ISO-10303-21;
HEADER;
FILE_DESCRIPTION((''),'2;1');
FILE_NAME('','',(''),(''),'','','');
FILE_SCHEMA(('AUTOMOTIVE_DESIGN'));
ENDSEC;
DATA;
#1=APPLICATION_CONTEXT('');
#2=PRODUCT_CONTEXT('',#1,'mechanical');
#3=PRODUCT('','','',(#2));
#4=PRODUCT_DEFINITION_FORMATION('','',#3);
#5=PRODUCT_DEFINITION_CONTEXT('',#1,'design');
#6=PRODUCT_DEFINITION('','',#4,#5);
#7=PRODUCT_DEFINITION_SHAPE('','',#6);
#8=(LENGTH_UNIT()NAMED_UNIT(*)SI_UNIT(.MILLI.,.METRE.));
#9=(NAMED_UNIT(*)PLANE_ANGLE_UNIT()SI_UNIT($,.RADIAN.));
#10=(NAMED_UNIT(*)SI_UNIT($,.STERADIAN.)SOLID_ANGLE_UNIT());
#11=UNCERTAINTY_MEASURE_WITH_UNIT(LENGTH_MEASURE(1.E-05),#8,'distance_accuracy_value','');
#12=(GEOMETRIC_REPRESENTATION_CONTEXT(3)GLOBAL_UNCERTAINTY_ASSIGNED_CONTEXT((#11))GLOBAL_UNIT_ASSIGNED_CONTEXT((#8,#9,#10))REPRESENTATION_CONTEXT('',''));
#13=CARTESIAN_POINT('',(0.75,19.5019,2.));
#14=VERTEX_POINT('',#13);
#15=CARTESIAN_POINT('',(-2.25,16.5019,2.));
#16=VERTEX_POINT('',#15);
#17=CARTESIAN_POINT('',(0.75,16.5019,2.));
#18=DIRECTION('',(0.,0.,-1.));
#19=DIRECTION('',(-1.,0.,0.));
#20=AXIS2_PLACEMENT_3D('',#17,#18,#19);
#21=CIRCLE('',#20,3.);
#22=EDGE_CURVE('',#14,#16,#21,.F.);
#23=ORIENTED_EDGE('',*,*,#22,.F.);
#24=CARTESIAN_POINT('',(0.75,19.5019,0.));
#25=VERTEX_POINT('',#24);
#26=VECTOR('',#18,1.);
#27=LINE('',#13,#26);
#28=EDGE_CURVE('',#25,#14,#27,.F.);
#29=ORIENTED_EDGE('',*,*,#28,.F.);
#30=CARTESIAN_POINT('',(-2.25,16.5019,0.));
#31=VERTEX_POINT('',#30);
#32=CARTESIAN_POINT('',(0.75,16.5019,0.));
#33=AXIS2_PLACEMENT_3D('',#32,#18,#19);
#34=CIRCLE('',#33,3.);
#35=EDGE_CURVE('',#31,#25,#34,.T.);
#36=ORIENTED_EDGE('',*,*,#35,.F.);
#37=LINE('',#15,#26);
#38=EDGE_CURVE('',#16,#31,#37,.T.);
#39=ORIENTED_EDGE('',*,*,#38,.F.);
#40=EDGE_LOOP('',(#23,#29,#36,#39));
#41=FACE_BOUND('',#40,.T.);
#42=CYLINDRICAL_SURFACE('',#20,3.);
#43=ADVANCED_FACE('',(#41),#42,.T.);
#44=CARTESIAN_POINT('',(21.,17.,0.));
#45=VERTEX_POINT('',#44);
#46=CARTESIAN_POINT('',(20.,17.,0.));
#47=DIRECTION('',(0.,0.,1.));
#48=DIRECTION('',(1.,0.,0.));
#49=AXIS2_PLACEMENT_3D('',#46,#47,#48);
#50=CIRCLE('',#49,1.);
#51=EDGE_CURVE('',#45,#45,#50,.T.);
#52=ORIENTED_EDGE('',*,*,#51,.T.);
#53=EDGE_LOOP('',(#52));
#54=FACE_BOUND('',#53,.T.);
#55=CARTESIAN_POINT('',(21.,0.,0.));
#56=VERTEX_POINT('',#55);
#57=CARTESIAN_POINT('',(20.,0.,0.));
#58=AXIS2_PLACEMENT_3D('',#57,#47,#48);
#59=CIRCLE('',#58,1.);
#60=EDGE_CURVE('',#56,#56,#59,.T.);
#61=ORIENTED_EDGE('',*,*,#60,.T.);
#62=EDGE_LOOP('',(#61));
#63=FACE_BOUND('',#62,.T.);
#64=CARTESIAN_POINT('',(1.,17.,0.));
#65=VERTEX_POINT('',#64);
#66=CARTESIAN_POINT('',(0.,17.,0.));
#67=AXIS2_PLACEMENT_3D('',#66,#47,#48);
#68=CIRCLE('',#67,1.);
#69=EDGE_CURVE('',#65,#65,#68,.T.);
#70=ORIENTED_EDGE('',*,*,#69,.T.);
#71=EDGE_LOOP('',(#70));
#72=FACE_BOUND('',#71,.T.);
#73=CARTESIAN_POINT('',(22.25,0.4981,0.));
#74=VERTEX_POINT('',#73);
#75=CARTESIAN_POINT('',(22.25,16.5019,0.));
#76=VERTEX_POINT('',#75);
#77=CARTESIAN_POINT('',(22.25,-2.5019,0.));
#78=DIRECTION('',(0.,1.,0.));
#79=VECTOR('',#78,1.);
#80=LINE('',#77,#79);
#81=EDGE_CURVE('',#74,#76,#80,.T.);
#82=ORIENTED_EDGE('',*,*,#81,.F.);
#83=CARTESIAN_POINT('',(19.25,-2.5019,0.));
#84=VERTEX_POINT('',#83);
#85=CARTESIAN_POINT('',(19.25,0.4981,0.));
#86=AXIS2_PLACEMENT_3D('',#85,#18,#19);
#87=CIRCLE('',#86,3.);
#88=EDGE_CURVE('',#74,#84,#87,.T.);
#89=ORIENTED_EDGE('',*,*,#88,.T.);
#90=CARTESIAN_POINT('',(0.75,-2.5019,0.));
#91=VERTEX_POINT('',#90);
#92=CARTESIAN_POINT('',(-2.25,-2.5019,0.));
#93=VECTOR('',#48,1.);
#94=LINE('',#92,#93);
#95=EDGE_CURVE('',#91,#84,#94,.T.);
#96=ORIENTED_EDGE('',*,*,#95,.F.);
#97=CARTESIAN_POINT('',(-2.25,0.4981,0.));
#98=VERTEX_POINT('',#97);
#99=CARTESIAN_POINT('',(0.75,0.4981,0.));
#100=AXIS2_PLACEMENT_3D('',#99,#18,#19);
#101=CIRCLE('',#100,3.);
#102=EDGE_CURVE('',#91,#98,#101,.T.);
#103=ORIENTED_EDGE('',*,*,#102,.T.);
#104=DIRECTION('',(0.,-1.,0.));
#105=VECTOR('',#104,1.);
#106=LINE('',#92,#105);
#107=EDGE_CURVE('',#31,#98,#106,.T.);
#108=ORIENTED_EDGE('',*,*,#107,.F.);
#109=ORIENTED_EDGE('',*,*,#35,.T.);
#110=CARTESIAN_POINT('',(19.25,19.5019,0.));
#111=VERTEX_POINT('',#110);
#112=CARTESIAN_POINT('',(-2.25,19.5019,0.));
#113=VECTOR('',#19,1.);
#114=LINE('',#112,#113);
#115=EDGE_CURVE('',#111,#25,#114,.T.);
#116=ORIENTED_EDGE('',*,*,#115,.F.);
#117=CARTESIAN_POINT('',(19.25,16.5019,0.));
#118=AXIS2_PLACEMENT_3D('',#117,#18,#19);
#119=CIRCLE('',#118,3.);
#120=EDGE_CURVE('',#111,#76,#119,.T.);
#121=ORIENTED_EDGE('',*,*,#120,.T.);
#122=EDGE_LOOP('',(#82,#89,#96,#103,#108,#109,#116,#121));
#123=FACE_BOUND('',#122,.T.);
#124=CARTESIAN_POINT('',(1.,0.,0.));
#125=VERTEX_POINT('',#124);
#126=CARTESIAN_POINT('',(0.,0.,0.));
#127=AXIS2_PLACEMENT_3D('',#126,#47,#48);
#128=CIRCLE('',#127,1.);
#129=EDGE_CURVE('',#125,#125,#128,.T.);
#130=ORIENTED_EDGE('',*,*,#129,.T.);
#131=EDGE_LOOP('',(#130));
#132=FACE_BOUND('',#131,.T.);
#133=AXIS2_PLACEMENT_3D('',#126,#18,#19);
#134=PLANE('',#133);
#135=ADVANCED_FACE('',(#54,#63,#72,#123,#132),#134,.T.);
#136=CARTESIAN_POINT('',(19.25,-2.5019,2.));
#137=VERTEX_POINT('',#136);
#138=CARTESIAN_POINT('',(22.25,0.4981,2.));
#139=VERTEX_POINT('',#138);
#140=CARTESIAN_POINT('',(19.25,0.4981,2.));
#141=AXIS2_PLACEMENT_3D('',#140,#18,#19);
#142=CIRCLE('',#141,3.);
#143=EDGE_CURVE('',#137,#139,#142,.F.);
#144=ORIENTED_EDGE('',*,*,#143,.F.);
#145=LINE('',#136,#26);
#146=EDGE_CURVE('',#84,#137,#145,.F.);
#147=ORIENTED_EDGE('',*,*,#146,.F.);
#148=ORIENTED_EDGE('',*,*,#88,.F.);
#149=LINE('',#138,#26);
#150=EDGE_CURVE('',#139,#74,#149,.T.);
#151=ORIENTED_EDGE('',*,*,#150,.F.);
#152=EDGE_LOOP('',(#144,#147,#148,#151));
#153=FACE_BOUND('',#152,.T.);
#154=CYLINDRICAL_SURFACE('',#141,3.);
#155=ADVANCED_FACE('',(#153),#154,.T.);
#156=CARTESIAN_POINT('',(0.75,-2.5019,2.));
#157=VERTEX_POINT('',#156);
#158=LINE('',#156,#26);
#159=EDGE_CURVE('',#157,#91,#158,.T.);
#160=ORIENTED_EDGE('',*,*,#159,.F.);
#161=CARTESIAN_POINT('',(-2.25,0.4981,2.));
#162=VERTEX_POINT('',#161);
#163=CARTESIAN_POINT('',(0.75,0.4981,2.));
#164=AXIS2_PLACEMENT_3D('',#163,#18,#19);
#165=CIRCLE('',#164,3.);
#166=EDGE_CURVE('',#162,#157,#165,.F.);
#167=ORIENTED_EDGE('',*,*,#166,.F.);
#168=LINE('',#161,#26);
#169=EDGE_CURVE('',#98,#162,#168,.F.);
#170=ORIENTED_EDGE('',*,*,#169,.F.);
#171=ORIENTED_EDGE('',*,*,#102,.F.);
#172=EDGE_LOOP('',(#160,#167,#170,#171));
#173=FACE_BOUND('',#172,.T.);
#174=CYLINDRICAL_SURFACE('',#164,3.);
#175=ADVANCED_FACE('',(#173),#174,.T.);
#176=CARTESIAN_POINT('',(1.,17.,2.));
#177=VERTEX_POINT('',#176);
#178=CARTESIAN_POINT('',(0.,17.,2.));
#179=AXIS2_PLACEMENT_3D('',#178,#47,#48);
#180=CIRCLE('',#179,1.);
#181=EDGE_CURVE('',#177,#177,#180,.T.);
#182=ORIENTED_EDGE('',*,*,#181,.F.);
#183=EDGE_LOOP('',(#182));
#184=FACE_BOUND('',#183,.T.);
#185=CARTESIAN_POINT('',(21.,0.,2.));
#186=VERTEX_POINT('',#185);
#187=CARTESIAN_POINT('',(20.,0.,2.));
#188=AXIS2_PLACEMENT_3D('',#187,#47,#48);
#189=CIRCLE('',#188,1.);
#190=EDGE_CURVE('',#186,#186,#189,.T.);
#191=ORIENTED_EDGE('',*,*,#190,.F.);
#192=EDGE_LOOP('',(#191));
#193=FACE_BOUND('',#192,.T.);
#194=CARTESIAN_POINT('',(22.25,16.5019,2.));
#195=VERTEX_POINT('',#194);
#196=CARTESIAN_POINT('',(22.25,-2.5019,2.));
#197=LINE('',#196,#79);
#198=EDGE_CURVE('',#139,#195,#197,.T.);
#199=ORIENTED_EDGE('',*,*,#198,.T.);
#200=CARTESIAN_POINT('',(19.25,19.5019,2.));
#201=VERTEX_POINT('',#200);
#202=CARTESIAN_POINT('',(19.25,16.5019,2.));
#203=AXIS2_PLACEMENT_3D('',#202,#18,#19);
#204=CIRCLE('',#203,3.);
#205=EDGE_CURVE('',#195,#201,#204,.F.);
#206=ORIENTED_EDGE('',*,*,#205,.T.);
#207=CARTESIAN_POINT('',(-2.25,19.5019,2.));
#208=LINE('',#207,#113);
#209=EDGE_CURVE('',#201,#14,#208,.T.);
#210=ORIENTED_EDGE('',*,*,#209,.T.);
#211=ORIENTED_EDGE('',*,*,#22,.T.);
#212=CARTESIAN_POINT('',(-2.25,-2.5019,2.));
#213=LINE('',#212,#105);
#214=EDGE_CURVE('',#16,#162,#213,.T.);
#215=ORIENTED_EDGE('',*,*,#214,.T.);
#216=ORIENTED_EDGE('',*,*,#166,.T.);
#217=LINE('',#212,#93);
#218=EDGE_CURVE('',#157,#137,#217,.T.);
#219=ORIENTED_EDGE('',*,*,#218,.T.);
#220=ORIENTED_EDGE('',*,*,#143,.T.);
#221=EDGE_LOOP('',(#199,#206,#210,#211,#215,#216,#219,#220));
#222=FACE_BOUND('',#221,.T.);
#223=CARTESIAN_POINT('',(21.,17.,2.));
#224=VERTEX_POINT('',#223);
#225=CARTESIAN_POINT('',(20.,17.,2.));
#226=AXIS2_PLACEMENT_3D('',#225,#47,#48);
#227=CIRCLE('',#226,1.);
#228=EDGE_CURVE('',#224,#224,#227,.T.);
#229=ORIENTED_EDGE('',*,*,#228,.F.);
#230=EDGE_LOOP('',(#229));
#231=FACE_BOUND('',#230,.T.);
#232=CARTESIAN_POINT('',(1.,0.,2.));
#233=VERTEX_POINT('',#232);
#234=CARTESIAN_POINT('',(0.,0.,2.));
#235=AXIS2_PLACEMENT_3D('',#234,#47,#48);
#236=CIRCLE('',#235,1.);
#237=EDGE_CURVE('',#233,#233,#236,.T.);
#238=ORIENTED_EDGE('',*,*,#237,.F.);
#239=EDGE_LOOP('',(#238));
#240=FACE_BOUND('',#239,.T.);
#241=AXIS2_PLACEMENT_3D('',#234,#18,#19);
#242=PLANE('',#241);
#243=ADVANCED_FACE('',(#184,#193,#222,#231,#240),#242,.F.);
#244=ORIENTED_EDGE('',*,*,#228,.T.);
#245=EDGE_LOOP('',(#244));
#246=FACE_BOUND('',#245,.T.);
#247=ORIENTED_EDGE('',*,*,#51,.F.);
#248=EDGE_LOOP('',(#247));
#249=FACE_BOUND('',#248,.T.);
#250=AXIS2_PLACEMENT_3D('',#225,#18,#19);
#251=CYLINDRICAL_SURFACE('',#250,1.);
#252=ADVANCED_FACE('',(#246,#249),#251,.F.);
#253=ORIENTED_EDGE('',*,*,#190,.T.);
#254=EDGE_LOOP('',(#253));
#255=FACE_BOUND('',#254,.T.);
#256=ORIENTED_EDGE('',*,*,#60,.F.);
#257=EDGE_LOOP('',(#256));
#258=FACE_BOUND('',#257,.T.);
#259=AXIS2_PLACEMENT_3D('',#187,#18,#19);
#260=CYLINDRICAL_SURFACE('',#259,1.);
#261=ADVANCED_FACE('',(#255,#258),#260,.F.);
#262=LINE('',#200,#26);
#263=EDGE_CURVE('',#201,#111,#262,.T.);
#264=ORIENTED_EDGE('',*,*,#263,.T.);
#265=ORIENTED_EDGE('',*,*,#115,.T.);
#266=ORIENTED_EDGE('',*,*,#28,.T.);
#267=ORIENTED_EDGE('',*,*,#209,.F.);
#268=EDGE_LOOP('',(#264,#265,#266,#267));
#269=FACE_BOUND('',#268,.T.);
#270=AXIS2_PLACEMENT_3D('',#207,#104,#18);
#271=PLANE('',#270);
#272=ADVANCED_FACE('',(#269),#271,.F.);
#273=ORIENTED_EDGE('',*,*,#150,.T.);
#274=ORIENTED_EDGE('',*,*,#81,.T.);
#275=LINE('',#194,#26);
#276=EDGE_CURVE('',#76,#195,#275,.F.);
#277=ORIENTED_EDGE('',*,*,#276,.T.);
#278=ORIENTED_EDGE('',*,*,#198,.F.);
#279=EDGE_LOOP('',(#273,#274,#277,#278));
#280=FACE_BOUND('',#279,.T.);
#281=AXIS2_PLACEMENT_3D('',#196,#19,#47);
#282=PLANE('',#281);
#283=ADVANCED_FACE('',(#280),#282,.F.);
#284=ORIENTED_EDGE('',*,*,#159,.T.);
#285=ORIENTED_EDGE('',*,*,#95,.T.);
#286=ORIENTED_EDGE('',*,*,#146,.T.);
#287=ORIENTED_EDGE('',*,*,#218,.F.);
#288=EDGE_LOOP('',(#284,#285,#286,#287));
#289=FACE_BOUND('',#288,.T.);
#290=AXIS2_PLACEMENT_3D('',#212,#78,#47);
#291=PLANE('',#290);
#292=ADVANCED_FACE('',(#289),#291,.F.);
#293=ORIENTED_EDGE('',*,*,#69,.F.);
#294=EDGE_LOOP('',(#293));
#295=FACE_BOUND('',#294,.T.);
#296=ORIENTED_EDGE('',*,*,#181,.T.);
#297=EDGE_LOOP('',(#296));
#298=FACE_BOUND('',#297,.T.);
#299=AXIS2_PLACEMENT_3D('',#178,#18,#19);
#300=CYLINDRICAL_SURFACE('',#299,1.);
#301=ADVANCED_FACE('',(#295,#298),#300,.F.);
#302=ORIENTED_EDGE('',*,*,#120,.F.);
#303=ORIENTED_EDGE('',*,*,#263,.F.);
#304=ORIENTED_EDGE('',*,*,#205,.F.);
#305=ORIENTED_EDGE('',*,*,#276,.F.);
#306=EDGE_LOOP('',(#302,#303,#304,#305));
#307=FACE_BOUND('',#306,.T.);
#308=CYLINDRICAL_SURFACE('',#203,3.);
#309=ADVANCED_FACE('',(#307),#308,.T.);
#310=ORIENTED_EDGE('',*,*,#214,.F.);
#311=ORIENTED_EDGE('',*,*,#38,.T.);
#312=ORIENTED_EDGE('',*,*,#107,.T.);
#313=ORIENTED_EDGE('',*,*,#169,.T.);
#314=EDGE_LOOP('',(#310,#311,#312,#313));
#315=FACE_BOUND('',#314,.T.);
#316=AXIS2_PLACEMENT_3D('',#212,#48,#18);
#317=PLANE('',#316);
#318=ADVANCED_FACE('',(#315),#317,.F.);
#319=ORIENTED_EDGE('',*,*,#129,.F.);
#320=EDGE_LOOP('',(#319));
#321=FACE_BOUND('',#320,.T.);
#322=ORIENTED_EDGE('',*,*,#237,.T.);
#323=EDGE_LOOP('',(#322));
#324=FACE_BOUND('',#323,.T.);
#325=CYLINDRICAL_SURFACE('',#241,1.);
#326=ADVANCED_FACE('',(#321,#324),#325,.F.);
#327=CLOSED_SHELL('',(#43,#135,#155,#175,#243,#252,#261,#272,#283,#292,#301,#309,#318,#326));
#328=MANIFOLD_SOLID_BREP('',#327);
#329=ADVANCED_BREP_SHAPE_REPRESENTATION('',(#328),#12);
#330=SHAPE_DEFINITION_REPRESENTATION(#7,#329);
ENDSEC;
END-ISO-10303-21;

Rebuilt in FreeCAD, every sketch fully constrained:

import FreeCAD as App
import Part
import Sketcher

V = App.Vector
Q = App.Units.Quantity


def edges_at(feature, points):
    """Names of the edges that pass closest to the given points."""
    edges = feature.Shape.Edges
    near = lambda p: min(range(len(edges)), key=lambda i: edges[i].distToShape(Part.Vertex(*p))[0])
    return sorted({f"Edge{near(p) + 1}" for p in points})

doc = App.newDocument("Part")
body = doc.addObject("PartDesign::Body", "Body")

sketch1 = body.newObject("Sketcher::SketchObject", "Sketch")
sketch1.AttachmentSupport = (doc.getObject("XY_Plane"), [""])
sketch1.MapMode = "FlatFace"
sketch1.addGeometry([
    Part.LineSegment(V(-2.25, 19.5019, 0), V(-2.25, -2.5019, 0)),
    Part.LineSegment(V(-2.25, -2.5019, 0), V(22.25, -2.5019, 0)),
    Part.LineSegment(V(22.25, -2.5019, 0), V(22.25, 19.5019, 0)),
    Part.LineSegment(V(22.25, 19.5019, 0), V(-2.25, 19.5019, 0)),
    Part.Circle(V(0, 0, 0), V(0, 0, 1), 1),
    Part.Circle(V(20, 0, 0), V(0, 0, 1), 1),
    Part.Circle(V(0, 17, 0), V(0, 0, 1), 1),
    Part.Circle(V(20, 17, 0), V(0, 0, 1), 1),
], False)
sketch1.addConstraint([
    Sketcher.Constraint("Coincident", 0, 2, 1, 1),
    Sketcher.Constraint("Coincident", 1, 2, 2, 1),
    Sketcher.Constraint("Coincident", 2, 2, 3, 1),
    Sketcher.Constraint("Coincident", 3, 2, 0, 1),
    Sketcher.Constraint("Vertical", 0),
    Sketcher.Constraint("Horizontal", 1),
    Sketcher.Constraint("Vertical", 2),
    Sketcher.Constraint("Horizontal", 3),
    Sketcher.Constraint("Coincident", 4, 3, -1, 1),
    Sketcher.Constraint("Equal", 4, 5),
    Sketcher.Constraint("Equal", 5, 6),
    Sketcher.Constraint("Equal", 6, 7),
    Sketcher.Constraint("PointOnObject", 5, 3, -1),
    Sketcher.Constraint("PointOnObject", 6, 3, -2),
    Sketcher.Constraint("Horizontal", 6, 3, 7, 3),
    Sketcher.Constraint("Vertical", 5, 3, 7, 3),
    Sketcher.Constraint("Diameter", 4, Q("2 mm")),
    Sketcher.Constraint("DistanceX", 1, 1, 1, 2, Q("24.5 mm")),
    Sketcher.Constraint("DistanceX", -1, 1, 5, 3, Q("20 mm")),
    Sketcher.Constraint("DistanceY", -1, 1, 6, 3, Q("17 mm")),
    Sketcher.Constraint("DistanceX", 0, 2, -1, 1, Q("2.25 mm")),
    Sketcher.Constraint("DistanceY", 0, 2, 0, 1, Q("22.0038 mm")),
    Sketcher.Constraint("DistanceY", 0, 2, -1, 1, Q("2.5019 mm")),
])
pad1 = body.newObject("PartDesign::Pad", "Pad")
pad1.Profile = sketch1
pad1.Length = 2
doc.recompute()

fillet = body.newObject("PartDesign::Fillet", "Fillet")
fillet.Base = (pad1, edges_at(pad1, [
    (22.25, -2.502, 1),
    (-2.25, -2.502, 1),
    (-2.25, 19.502, 1),
    (22.25, 19.502, 1),
]))
fillet.Radius = 3

doc.recompute()
